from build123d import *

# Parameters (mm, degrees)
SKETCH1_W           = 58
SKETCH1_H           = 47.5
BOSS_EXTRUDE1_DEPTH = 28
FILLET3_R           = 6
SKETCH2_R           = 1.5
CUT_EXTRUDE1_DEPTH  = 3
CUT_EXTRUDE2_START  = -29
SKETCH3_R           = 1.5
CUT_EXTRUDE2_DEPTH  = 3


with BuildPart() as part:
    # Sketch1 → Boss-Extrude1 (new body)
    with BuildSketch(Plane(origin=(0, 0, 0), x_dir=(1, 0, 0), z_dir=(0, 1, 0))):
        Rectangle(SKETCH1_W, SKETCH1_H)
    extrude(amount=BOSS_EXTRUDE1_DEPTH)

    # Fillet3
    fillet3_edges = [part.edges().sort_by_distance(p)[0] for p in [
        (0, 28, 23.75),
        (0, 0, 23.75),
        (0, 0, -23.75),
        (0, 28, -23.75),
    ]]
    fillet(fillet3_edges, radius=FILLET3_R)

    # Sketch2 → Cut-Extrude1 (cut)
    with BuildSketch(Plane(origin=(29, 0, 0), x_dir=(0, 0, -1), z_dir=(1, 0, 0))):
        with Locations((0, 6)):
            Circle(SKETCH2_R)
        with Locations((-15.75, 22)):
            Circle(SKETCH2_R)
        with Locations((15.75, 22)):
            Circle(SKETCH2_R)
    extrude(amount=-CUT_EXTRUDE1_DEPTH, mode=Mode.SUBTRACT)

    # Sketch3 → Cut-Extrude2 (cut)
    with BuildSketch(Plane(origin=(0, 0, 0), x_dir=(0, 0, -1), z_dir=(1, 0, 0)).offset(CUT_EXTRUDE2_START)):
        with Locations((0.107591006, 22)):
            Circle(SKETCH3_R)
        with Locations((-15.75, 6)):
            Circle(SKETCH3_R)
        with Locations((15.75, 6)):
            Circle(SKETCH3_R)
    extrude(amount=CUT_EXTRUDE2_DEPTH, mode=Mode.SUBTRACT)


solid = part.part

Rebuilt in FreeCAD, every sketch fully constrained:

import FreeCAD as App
import Part
import Sketcher
from FreeCAD import Vector
Q = App.Units.Quantity


def edges_at(feature, points):
    """Names of the edges that pass closest to the given points."""
    edges = feature.Shape.Edges
    near = lambda p: min(range(len(edges)), key=lambda i: edges[i].distToShape(Part.Vertex(*p))[0])
    return sorted({f"Edge{near(p) + 1}" for p in points})


def add_polygon(sketch, points):
    """Adds a closed chain of lines whose ends are joined by coincident constraints."""
    first, n = sketch.GeometryCount, len(points)
    for a, b in zip(points, points[1:] + points[:1]):
        sketch.addGeometry(Part.LineSegment(App.Vector(*a, 0), App.Vector(*b, 0)), False)
    for i in range(n):
        sketch.addConstraint(Sketcher.Constraint("Coincident", first + i, 2, first + (i + 1) % n, 1))

doc = App.newDocument("Part")
body = doc.addObject("PartDesign::Body", "Body")

# Sketch on XZ plane
sketch1 = body.newObject("Sketcher::SketchObject", "Sketch")
sketch1.AttachmentSupport = (doc.getObject("XZ_Plane"), [""])
sketch1.MapMode = "FlatFace"
add_polygon(sketch1, [(-29, -24), (-29, 24), (29, 24), (29, -24)])  # lines 0-3
sketch1.addConstraint([
    Sketcher.Constraint("Vertical", 0),
    Sketcher.Constraint("Horizontal", 1),
    Sketcher.Constraint("Vertical", 2),
    Sketcher.Constraint("Horizontal", 3),
    Sketcher.Constraint("Symmetric", 0, 2, 2, 2, -1, 1),
    Sketcher.Constraint("DistanceX", 1, 1, 1, 2, Q("58 mm")),
    Sketcher.Constraint("DistanceY", 0, 1, 0, 2, Q("47.5 mm")),
])
pad1 = body.newObject("PartDesign::Pad", "Pad")
pad1.Profile = sketch1
pad1.Length = 28
pad1.Reversed = True
doc.recompute()

fillet = body.newObject("PartDesign::Fillet", "Fillet")
fillet.Base = (pad1, edges_at(pad1, [
    (0, 28, 23.75),
    (0, 0, 23.75),
    (0, 0, -23.75),
    (0, 28, -23.75),
]))
fillet.Radius = 6

# Sketch on YZ plane
sketch2 = body.newObject("Sketcher::SketchObject", "Sketch001")
sketch2.AttachmentSupport = (doc.getObject("YZ_Plane"), [""])
sketch2.MapMode = "FlatFace"
sketch2.AttachmentOffset = App.Placement(Vector(0, 0, 29), App.Rotation())
sketch2.addGeometry([
    Part.Circle(Vector(6, 0, 0), Vector(0, 0, 1), 1.5),
    Part.Circle(Vector(22, 15.8, 0), Vector(0, 0, 1), 1.5),
    Part.Circle(Vector(22, -15.8, 0), Vector(0, 0, 1), 1.5),
], False)
sketch2.addConstraint([
    Sketcher.Constraint("Equal", 0, 1),
    Sketcher.Constraint("Equal", 1, 2),
    Sketcher.Constraint("Symmetric", 1, 3, 2, 3, -1),
    Sketcher.Constraint("PointOnObject", 0, 3, -1),
    Sketcher.Constraint("Diameter", 0, Q("3 mm")),
    Sketcher.Constraint("DistanceX", -1, 1, 0, 3, Q("6 mm")),
    Sketcher.Constraint("DistanceX", -1, 1, 1, 3, Q("22 mm")),
    Sketcher.Constraint("DistanceY", 2, 3, 1, 3, Q("31.5 mm")),
])
pocket1 = body.newObject("PartDesign::Pocket", "Pocket")
pocket1.Profile = sketch2
pocket1.Length = 3

# Sketch on YZ plane
sketch3 = body.newObject("Sketcher::SketchObject", "Sketch002")
sketch3.AttachmentSupport = (doc.getObject("YZ_Plane"), [""])
sketch3.MapMode = "FlatFace"
sketch3.AttachmentOffset = App.Placement(Vector(0, 0, -29), App.Rotation())
sketch3.addGeometry([
    Part.Circle(Vector(22, -0.1, 0), Vector(0, 0, 1), 1.5),
    Part.Circle(Vector(6, 15.8, 0), Vector(0, 0, 1), 1.5),
    Part.Circle(Vector(6, -15.8, 0), Vector(0, 0, 1), 1.5),
], False)
sketch3.addConstraint([
    Sketcher.Constraint("Equal", 0, 1),
    Sketcher.Constraint("Equal", 1, 2),
    Sketcher.Constraint("Symmetric", 1, 3, 2, 3, -1),
    Sketcher.Constraint("Diameter", 0, Q("3 mm")),
    Sketcher.Constraint("DistanceX", -1, 1, 0, 3, Q("22 mm")),
    Sketcher.Constraint("DistanceX", -1, 1, 1, 3, Q("6 mm")),
    Sketcher.Constraint("DistanceY", 2, 3, 1, 3, Q("31.5 mm")),
    Sketcher.Constraint("DistanceY", 0, 3, -1, 1, Q("0.107591 mm")),
])
pocket2 = body.newObject("PartDesign::Pocket", "Pocket001")
pocket2.Profile = sketch3
pocket2.Length = 3
pocket2.Reversed = True

doc.recompute()
